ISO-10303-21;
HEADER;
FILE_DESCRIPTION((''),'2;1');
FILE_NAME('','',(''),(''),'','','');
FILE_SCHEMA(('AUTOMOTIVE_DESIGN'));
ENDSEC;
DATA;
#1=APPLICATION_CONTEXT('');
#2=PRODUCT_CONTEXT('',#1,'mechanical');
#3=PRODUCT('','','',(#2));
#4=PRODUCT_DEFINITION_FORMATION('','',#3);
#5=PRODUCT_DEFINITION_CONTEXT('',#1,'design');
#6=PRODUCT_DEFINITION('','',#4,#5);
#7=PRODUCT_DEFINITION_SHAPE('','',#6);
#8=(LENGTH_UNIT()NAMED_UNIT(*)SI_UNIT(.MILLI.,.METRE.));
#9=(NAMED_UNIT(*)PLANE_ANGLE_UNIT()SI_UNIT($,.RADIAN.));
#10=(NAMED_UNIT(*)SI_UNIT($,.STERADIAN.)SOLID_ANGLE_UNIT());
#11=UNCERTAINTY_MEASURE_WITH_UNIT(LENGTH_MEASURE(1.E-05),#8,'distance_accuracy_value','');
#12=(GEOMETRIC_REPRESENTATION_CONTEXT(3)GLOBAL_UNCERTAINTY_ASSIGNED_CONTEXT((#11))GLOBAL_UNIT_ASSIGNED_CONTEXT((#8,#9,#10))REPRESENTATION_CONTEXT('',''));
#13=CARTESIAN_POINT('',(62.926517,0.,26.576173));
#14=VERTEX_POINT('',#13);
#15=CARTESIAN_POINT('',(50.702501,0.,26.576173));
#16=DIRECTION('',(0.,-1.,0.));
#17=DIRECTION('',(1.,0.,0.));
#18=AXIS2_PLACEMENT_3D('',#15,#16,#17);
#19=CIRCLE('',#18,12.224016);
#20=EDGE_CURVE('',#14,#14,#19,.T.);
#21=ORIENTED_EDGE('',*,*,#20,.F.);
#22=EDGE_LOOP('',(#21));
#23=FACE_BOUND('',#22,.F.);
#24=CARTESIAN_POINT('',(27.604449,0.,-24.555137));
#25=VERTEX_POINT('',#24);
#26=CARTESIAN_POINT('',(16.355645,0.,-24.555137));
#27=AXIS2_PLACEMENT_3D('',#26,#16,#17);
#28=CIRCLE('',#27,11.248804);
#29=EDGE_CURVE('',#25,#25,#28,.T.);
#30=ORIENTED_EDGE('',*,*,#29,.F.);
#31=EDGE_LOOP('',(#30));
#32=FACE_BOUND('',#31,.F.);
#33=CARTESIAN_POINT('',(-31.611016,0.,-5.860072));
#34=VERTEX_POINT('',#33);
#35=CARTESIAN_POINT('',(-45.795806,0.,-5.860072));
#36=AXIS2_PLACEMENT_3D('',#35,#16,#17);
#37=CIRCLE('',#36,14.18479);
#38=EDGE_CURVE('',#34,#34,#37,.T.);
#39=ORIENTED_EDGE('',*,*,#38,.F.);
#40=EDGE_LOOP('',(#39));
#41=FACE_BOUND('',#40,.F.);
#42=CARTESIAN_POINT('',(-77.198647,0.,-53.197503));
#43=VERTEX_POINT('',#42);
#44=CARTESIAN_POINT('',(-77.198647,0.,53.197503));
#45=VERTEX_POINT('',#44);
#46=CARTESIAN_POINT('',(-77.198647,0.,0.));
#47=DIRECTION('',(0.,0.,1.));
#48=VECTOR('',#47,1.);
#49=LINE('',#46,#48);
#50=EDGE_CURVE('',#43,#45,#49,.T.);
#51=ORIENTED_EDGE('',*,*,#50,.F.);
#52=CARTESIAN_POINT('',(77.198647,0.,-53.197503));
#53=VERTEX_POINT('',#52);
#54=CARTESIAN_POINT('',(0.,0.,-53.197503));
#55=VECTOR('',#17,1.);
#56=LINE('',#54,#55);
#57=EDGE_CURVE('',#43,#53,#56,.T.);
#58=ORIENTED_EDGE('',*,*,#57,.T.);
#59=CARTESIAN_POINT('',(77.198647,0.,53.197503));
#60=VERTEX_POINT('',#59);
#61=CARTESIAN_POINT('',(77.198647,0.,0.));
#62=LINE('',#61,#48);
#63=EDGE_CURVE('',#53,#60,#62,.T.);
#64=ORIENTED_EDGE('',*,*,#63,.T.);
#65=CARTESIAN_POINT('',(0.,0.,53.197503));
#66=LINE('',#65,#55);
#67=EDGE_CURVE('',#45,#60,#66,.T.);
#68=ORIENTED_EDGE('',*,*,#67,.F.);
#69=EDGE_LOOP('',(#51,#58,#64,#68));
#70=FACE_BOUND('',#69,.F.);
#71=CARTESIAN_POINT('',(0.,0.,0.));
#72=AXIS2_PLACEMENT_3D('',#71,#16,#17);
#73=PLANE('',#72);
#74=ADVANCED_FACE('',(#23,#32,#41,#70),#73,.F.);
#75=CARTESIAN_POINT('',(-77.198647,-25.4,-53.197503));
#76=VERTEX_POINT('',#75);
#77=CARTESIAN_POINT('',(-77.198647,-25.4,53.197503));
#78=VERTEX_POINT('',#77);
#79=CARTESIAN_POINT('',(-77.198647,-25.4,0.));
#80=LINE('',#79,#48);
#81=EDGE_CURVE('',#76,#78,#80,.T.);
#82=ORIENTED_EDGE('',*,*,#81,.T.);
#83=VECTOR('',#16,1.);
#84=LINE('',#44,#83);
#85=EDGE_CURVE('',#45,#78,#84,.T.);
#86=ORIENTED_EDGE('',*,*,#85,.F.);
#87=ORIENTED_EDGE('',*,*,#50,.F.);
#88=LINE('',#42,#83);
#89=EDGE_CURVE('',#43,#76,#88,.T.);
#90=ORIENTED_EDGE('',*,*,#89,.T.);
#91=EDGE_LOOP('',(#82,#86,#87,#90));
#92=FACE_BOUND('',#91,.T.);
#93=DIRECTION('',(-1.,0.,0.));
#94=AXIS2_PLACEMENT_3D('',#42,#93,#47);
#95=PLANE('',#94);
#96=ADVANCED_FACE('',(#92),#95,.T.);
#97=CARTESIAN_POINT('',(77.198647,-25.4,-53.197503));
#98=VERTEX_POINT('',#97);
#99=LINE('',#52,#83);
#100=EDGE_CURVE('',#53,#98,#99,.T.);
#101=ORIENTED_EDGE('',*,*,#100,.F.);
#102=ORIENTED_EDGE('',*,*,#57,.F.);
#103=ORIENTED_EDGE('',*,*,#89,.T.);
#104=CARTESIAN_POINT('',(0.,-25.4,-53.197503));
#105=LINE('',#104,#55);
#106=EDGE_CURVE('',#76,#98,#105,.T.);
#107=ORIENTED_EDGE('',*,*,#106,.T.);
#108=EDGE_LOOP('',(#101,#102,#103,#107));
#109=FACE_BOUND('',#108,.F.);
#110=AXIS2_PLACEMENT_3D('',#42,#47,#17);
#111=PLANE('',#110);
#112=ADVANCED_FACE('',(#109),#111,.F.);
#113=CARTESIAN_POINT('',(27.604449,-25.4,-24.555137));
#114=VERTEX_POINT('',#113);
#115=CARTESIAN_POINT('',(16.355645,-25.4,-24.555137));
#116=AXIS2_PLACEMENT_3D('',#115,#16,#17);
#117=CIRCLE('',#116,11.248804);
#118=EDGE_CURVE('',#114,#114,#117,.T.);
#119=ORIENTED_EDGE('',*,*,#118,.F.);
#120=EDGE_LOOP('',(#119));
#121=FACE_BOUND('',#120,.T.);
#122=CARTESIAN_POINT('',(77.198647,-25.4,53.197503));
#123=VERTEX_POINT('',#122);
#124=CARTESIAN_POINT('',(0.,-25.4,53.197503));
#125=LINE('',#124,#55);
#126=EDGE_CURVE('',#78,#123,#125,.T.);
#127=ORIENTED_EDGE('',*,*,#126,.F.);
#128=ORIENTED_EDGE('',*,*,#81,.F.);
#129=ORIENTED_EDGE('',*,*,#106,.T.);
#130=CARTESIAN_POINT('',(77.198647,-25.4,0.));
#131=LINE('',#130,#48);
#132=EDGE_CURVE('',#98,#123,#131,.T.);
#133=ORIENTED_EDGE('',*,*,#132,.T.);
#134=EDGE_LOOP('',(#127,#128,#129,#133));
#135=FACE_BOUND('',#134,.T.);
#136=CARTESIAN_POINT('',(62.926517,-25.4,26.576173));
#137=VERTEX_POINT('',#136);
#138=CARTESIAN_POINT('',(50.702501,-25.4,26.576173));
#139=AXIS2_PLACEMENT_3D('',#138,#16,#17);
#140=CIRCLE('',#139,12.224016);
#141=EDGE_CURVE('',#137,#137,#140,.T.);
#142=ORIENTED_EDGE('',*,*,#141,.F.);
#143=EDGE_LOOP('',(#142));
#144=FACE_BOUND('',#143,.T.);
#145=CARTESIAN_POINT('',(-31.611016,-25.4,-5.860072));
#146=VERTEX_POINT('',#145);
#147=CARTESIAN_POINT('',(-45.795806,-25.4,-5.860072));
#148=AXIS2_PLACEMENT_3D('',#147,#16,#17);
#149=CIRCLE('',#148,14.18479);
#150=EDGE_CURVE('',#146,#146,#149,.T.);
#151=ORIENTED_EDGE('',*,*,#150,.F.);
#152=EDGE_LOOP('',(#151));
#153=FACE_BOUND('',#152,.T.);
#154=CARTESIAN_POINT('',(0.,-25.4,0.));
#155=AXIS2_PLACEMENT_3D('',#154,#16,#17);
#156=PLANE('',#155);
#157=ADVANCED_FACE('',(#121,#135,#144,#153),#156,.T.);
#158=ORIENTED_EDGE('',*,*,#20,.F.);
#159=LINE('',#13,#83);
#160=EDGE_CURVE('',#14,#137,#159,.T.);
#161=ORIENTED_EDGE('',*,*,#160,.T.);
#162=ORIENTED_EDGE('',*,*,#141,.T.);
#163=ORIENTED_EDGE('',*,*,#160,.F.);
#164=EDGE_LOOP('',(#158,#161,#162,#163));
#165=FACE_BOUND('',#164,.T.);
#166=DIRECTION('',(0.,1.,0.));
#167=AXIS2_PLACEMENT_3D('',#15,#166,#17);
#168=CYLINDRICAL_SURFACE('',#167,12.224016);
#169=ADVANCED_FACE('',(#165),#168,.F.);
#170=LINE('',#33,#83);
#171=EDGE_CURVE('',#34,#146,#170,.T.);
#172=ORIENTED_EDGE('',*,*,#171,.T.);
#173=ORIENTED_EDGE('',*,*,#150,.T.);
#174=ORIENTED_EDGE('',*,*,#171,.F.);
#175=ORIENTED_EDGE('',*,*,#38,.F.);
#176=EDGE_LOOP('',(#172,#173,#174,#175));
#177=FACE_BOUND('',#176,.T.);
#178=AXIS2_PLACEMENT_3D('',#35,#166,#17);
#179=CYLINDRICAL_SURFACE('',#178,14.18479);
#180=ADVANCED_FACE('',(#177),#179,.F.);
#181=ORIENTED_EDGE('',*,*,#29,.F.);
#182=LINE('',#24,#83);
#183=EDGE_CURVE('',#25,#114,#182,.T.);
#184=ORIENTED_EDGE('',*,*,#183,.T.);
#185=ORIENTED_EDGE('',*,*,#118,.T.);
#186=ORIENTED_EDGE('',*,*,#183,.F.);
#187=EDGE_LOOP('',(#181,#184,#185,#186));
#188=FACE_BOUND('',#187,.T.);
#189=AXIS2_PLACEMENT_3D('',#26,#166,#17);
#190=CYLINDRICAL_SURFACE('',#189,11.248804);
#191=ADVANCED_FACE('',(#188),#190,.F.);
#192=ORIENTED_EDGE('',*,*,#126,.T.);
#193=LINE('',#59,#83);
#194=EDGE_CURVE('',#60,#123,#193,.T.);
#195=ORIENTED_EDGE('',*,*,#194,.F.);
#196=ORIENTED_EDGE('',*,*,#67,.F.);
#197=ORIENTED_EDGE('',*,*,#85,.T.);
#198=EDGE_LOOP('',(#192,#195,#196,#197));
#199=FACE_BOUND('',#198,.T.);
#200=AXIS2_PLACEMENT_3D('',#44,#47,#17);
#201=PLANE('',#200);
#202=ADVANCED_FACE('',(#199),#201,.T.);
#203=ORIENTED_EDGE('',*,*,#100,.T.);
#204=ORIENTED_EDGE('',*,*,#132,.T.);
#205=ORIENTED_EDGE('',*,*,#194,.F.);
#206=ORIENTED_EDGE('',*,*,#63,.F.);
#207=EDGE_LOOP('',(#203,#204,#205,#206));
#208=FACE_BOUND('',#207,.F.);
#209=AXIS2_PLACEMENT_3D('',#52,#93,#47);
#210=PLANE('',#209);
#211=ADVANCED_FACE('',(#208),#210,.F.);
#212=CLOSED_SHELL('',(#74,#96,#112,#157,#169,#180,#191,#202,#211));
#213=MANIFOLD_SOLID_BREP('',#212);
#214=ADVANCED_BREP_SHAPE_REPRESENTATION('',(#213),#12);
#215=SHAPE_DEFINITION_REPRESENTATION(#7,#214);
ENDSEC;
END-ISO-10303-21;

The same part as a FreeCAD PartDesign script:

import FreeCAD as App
import Part
import Sketcher

V = App.Vector
Q = App.Units.Quantity

doc = App.newDocument("Part")
params = doc.addObject("Spreadsheet::Sheet", "Params")
for row, (alias, value) in enumerate([
    ("pad1_length", "1 in"),
], start=1):
    params.set(f"A{row}", alias)
    params.set(f"B{row}", "=" + value)
    params.setAlias(f"B{row}", alias)

body = doc.addObject("PartDesign::Body", "Body")

sketch1 = doc.addObject("Sketcher::SketchObject", "Sketch")
body.addObject(sketch1)
sketch1.AttachmentSupport = (doc.XZ_Plane, [""])
sketch1.MapMode = "FlatFace"
sketch1.addGeometry([
    Part.LineSegment(V(-77.198647, 53.197503, 0), V(-77.198647, -53.197503, 0)),
    Part.LineSegment(V(-77.198647, -53.197503, 0), V(77.198647, -53.197503, 0)),
    Part.LineSegment(V(77.198647, -53.197503, 0), V(77.198647, 53.197503, 0)),
    Part.LineSegment(V(77.198647, 53.197503, 0), V(-77.198647, 53.197503, 0)),
    Part.Circle(V(-45.795806, -5.860072, 0), V(0, 0, 1), 14.18479),
    Part.Circle(V(16.355645, -24.555137, 0), V(0, 0, 1), 11.248804),
    Part.Circle(V(50.702501, 26.576173, 0), V(0, 0, 1), 12.224016),
], False)
sketch1.addConstraint([
    Sketcher.Constraint("Coincident", 0, 2, 1, 1),
    Sketcher.Constraint("Coincident", 1, 2, 2, 1),
    Sketcher.Constraint("Coincident", 2, 2, 3, 1),
    Sketcher.Constraint("Coincident", 3, 2, 0, 1),
    Sketcher.Constraint("Vertical", 0),
    Sketcher.Constraint("Horizontal", 1),
    Sketcher.Constraint("Vertical", 2),
    Sketcher.Constraint("Horizontal", 3),
    Sketcher.Constraint("Symmetric", 0, 2, 2, 2, -1, 1),
    Sketcher.Constraint("Diameter", 4, Q("28.36958 mm")),
    Sketcher.Constraint("Diameter", 5, Q("22.497608 mm")),
    Sketcher.Constraint("Diameter", 6, Q("24.448032 mm")),
    Sketcher.Constraint("DistanceX", -1, 1, 6, 3, Q("50.702501 mm")),
    Sketcher.Constraint("DistanceX", 5, 3, 1, 2, Q("60.843002 mm")),
    Sketcher.Constraint("DistanceX", 1, 1, 1, 2, Q("154.397294 mm")),
    Sketcher.Constraint("DistanceY", 0, 2, 0, 1, Q("106.395006 mm")),
    Sketcher.Constraint("DistanceY", 4, 3, -1, 1, Q("5.860072 mm")),
    Sketcher.Constraint("DistanceX", 4, 3, 5, 3, Q("62.151451 mm")),
    Sketcher.Constraint("DistanceY", 5, 3, 6, 3, Q("51.13131 mm")),
    Sketcher.Constraint("DistanceY", 6, 3, 2, 2, Q("26.62133 mm")),
])
pad1 = doc.addObject("PartDesign::Pad", "Pad")
body.addObject(pad1)
pad1.Profile = sketch1
pad1.setExpression("Length", "Params.pad1_length")

doc.recompute()
